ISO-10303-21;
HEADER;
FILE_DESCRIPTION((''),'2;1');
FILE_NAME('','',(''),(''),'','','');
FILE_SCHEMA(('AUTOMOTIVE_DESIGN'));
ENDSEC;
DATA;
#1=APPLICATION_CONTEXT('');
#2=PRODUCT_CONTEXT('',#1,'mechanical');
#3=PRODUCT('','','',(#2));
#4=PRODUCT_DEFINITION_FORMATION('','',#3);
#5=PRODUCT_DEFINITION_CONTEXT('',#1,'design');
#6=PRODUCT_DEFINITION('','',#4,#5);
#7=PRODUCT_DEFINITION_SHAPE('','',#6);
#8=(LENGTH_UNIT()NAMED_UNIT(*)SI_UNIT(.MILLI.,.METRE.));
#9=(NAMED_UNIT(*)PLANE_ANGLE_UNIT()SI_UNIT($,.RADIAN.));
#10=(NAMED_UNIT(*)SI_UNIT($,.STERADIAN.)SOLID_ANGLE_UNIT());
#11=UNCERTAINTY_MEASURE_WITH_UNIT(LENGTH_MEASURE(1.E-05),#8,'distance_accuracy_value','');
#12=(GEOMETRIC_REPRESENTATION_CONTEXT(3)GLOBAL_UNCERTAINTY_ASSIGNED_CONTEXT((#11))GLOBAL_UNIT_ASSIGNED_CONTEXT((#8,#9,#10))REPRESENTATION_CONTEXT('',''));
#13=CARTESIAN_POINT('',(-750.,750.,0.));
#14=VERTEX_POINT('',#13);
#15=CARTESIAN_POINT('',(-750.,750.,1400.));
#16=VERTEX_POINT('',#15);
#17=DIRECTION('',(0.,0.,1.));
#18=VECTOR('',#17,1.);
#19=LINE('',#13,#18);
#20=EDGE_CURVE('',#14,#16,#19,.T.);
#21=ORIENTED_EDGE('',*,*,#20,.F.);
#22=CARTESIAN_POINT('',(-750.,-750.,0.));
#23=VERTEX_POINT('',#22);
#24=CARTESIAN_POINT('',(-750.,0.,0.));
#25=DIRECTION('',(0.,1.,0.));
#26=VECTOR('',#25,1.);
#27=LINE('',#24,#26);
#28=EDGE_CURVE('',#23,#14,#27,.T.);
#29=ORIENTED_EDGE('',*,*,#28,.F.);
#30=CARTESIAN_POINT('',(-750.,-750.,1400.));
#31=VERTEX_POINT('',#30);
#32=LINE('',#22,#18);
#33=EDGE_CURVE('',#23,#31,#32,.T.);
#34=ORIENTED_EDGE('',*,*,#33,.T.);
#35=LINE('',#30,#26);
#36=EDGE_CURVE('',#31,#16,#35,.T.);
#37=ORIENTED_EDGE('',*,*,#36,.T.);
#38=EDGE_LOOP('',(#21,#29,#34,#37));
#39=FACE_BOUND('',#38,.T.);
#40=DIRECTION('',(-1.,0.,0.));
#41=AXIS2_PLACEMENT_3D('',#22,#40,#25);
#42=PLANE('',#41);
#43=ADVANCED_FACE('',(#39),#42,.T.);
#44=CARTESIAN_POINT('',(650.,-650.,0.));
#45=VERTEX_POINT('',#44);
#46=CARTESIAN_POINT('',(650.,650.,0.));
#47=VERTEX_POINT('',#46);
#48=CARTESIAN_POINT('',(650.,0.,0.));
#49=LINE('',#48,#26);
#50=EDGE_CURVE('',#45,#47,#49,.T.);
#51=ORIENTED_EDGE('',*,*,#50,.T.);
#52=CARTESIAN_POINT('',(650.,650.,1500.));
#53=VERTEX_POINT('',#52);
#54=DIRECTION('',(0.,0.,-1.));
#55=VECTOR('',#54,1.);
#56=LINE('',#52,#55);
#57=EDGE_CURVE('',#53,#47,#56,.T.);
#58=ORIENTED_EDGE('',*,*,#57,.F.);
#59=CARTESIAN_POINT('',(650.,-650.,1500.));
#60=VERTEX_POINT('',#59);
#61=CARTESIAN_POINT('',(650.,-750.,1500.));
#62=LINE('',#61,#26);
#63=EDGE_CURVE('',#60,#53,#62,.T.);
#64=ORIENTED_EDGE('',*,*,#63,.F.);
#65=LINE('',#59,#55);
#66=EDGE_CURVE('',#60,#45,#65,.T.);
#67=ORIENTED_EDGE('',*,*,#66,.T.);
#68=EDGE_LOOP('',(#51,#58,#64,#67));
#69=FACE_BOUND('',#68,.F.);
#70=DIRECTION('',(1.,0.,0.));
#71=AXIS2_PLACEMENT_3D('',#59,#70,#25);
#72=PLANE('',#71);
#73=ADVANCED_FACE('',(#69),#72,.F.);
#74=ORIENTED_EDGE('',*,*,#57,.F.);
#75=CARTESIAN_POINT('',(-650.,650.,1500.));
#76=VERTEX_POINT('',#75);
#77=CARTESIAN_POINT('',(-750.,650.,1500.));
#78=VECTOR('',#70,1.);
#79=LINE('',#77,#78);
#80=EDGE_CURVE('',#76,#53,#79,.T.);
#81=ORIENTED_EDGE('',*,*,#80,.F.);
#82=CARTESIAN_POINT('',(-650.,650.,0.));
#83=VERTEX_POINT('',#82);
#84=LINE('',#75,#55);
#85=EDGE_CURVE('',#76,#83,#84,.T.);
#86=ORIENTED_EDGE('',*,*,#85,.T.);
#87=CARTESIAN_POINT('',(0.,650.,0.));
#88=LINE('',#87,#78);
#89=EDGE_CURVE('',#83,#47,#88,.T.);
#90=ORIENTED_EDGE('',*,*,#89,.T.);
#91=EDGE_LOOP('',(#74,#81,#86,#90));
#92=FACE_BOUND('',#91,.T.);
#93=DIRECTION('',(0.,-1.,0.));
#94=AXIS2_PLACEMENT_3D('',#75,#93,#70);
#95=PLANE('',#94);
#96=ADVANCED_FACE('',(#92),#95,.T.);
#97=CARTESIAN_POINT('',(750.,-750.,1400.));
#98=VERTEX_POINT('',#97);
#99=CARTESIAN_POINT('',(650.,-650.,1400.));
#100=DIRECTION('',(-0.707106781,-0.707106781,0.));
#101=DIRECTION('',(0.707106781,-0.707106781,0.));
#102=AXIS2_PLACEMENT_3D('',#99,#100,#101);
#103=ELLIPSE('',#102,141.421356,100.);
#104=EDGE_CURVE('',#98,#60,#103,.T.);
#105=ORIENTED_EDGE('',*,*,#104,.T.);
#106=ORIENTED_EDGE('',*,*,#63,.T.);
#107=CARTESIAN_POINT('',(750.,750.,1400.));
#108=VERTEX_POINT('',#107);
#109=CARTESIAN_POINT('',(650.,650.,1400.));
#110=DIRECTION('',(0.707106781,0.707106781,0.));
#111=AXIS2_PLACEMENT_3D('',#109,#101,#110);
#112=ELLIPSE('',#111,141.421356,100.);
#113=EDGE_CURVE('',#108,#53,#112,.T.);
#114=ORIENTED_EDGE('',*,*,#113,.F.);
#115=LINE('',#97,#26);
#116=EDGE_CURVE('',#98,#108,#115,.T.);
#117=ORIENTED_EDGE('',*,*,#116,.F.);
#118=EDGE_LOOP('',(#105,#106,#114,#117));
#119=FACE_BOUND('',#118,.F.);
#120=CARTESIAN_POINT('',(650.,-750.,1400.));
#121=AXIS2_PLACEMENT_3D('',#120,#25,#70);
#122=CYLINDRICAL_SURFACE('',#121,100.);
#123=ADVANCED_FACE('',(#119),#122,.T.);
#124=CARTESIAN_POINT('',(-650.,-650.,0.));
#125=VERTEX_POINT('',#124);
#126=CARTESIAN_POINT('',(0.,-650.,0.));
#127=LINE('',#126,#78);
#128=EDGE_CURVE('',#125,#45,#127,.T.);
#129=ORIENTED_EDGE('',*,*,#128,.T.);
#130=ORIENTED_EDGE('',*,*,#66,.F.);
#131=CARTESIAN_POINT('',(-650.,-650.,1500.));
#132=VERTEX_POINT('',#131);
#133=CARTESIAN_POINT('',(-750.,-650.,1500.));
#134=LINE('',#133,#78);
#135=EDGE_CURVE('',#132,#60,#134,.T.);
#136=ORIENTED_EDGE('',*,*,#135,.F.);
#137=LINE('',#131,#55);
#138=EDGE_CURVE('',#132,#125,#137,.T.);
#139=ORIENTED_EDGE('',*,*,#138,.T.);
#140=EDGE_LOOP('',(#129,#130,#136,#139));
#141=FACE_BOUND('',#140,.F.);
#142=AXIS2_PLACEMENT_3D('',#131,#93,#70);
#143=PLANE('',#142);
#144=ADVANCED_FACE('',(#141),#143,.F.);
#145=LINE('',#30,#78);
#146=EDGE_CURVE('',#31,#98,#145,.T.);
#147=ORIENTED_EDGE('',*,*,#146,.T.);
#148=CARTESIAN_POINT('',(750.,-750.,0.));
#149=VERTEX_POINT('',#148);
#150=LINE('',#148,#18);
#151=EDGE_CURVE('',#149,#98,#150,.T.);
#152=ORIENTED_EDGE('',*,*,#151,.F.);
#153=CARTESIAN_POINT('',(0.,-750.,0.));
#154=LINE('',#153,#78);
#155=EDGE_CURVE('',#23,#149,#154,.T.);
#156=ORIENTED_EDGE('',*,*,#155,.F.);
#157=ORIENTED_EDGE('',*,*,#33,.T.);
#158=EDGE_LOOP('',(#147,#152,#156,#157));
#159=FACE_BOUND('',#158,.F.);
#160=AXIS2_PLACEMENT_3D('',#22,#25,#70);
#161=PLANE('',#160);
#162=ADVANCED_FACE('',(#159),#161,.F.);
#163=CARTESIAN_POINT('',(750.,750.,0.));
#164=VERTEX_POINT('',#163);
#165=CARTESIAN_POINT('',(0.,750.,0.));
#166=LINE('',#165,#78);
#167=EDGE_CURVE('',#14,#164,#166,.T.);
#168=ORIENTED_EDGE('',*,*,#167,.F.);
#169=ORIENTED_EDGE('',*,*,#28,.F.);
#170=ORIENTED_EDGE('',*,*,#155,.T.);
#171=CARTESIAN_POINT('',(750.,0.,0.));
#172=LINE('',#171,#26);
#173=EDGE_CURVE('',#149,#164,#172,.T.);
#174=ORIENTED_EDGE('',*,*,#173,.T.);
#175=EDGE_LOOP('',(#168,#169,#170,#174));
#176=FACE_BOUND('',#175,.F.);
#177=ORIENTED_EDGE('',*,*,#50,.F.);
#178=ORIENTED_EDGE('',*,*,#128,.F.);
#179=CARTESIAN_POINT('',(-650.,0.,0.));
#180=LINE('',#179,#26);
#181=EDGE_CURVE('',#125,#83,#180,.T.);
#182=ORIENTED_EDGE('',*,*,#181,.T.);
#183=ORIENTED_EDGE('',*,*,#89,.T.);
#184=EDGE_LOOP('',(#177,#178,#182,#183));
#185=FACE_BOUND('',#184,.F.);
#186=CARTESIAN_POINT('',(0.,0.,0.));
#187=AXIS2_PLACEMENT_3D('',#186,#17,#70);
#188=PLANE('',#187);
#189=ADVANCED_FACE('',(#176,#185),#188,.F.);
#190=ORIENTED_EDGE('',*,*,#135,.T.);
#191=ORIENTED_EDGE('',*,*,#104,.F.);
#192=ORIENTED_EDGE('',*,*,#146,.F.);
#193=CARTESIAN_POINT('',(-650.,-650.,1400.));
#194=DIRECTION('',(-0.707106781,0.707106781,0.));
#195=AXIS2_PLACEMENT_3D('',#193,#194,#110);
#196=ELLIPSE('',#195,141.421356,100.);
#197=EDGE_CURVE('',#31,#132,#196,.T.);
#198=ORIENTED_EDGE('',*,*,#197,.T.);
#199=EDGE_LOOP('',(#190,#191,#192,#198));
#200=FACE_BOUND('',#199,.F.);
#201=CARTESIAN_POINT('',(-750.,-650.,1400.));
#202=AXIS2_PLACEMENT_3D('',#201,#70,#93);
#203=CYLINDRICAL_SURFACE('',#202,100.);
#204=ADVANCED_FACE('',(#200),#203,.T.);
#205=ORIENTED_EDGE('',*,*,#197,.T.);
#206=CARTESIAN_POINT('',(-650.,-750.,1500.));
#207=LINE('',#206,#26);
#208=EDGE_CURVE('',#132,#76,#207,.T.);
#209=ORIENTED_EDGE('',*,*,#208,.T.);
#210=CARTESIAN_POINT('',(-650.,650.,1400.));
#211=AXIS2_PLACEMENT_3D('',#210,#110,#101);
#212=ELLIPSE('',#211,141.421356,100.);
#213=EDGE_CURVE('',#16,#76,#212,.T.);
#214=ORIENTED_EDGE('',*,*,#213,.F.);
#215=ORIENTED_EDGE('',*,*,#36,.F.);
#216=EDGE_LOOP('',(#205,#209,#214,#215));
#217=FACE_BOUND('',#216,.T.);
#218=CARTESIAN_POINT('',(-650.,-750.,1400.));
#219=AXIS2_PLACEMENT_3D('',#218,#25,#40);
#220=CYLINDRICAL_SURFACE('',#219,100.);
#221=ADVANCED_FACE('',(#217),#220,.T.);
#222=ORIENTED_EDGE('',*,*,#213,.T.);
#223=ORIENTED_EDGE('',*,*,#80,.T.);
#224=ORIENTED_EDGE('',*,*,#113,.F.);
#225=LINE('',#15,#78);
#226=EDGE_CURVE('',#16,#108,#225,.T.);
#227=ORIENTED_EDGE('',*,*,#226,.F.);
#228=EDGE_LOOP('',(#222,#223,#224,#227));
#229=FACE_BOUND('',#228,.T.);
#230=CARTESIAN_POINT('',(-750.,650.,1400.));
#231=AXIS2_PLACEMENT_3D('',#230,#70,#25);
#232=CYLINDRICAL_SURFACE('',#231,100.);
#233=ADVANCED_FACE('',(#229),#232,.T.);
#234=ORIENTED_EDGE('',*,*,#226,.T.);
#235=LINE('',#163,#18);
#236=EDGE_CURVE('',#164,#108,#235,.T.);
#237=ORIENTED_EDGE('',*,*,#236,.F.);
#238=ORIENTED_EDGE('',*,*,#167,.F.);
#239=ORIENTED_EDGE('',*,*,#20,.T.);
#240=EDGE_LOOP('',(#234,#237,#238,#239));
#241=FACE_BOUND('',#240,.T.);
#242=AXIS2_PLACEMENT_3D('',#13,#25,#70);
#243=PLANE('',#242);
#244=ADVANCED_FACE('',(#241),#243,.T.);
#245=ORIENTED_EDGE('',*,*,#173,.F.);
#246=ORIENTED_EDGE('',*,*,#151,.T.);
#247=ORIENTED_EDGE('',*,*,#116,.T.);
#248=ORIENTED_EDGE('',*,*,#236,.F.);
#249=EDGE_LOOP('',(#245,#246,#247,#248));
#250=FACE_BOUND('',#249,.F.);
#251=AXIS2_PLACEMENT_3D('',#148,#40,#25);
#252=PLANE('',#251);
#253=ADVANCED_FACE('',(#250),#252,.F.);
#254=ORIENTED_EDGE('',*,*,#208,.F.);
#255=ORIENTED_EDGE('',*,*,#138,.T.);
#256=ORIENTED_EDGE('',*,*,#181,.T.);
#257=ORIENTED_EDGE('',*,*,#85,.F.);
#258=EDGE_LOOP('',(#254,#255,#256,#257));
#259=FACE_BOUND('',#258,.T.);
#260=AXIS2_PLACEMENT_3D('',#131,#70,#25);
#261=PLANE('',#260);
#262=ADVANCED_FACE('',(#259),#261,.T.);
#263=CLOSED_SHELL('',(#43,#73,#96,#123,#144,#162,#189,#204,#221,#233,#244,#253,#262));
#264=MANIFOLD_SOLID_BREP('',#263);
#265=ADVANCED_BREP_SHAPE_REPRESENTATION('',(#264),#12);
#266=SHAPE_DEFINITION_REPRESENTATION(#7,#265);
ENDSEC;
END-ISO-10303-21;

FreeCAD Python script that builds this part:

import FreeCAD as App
import Part
import Sketcher
Q = App.Units.Quantity


def edges_at(feature, points):
    """Names of the edges that pass closest to the given points."""
    edges = feature.Shape.Edges
    near = lambda p: min(range(len(edges)), key=lambda i: edges[i].distToShape(Part.Vertex(*p))[0])
    return sorted({f"Edge{near(p) + 1}" for p in points})

doc = App.newDocument("Part")
body = doc.addObject("PartDesign::Body", "Body")

# Sketch on XY plane
sketch1 = body.newObject("Sketcher::SketchObject", "Sketch")
sketch1.AttachmentSupport = (doc.getObject("XY_Plane"), [""])
sketch1.MapMode = "FlatFace"
sketch1.addGeometry(Part.LineSegment(App.Vector(-750, 750, 0), App.Vector(-750, -750, 0)), False)
sketch1.addGeometry(Part.LineSegment(App.Vector(-750, -750, 0), App.Vector(750, -750, 0)), False)
sketch1.addGeometry(Part.LineSegment(App.Vector(750, -750, 0), App.Vector(750, 750, 0)), False)
sketch1.addGeometry(Part.LineSegment(App.Vector(750, 750, 0), App.Vector(-750, 750, 0)), False)
sketch1.addConstraint(Sketcher.Constraint("Coincident", 0, 2, 1, 1))
sketch1.addConstraint(Sketcher.Constraint("Coincident", 1, 2, 2, 1))
sketch1.addConstraint(Sketcher.Constraint("Coincident", 2, 2, 3, 1))
sketch1.addConstraint(Sketcher.Constraint("Coincident", 3, 2, 0, 1))
sketch1.addConstraint(Sketcher.Constraint("Vertical", 0))
sketch1.addConstraint(Sketcher.Constraint("Horizontal", 1))
sketch1.addConstraint(Sketcher.Constraint("Vertical", 2))
sketch1.addConstraint(Sketcher.Constraint("Horizontal", 3))
sketch1.addConstraint(Sketcher.Constraint("Symmetric", 0, 2, 2, 2, -1, 1))
sketch1.addConstraint(Sketcher.Constraint("Equal", 3, 0))
sketch1.addConstraint(Sketcher.Constraint("DistanceX", 1, 1, 1, 2, Q("1500 mm")))
pad1 = body.newObject("PartDesign::Pad", "Pad")
pad1.Profile = sketch1
pad1.Length = 1500
doc.recompute()

fillet = body.newObject("PartDesign::Fillet", "Fillet")
fillet.Base = (pad1, edges_at(pad1, [
    (0, -750, 1500),
    (750, 0, 1500),
    (0, 750, 1500),
    (-750, 0, 1500),
]))
fillet.Radius = 100

# Sketch on XY plane
sketch2 = body.newObject("Sketcher::SketchObject", "Sketch001")
sketch2.AttachmentSupport = (doc.getObject("XY_Plane"), [""])
sketch2.MapMode = "FlatFace"
sketch2.AttachmentOffset = App.Placement(App.Vector(0, 0, 1500), App.Rotation())
sketch2.addGeometry(Part.LineSegment(App.Vector(-650, 650, 0), App.Vector(-650, -650, 0)), False)
sketch2.addGeometry(Part.LineSegment(App.Vector(-650, -650, 0), App.Vector(650, -650, 0)), False)
sketch2.addGeometry(Part.LineSegment(App.Vector(650, -650, 0), App.Vector(650, 650, 0)), False)
sketch2.addGeometry(Part.LineSegment(App.Vector(650, 650, 0), App.Vector(-650, 650, 0)), False)
sketch2.addConstraint(Sketcher.Constraint("Coincident", 0, 2, 1, 1))
sketch2.addConstraint(Sketcher.Constraint("Coincident", 1, 2, 2, 1))
sketch2.addConstraint(Sketcher.Constraint("Coincident", 2, 2, 3, 1))
sketch2.addConstraint(Sketcher.Constraint("Coincident", 3, 2, 0, 1))
sketch2.addConstraint(Sketcher.Constraint("Vertical", 0))
sketch2.addConstraint(Sketcher.Constraint("Horizontal", 1))
sketch2.addConstraint(Sketcher.Constraint("Vertical", 2))
sketch2.addConstraint(Sketcher.Constraint("Horizontal", 3))
sketch2.addConstraint(Sketcher.Constraint("Symmetric", 0, 2, 2, 2, -1, 1))
sketch2.addConstraint(Sketcher.Constraint("Equal", 3, 0))
sketch2.addConstraint(Sketcher.Constraint("DistanceX", 1, 1, 1, 2, Q("1300 mm")))
pocket1 = body.newObject("PartDesign::Pocket", "Pocket")
pocket1.Profile = sketch2
pocket1.Length = 1500

doc.recompute()
